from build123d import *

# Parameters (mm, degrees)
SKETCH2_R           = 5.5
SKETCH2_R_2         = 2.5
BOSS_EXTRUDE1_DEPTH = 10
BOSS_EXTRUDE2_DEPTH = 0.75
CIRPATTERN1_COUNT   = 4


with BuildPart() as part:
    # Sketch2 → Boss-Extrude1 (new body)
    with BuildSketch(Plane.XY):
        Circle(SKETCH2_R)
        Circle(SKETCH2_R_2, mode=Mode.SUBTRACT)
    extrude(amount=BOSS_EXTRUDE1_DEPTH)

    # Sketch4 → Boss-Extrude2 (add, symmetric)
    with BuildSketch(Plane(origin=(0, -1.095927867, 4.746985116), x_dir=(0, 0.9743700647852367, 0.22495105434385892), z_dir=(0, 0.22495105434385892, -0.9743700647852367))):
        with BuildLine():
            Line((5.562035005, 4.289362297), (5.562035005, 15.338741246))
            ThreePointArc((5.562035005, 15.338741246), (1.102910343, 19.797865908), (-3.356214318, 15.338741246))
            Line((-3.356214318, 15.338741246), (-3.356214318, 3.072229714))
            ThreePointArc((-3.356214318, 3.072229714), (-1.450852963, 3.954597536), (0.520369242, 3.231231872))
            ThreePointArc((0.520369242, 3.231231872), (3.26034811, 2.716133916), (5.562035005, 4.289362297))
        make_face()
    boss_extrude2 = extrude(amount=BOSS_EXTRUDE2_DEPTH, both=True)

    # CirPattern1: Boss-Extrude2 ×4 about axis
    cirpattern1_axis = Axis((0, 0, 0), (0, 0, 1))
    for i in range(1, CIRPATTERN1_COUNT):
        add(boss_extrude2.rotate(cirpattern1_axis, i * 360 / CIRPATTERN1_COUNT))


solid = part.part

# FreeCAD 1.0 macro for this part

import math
import FreeCAD as App
import Part
import Sketcher

V = App.Vector

doc = App.newDocument("Part")
body = doc.addObject("PartDesign::Body", "Body")

sketch1 = doc.addObject("Sketcher::SketchObject", "Sketch")
body.addObject(sketch1)
sketch1.AttachmentSupport = (doc.XY_Plane, [""])
sketch1.MapMode = "FlatFace"
sketch1.addGeometry([
    Part.Circle(V(0, 0, 0), V(0, 0, 1), 5.5),
    Part.Circle(V(0, 0, 0), V(0, 0, 1), 2.5),
], False)
sketch1.addConstraint([
    Sketcher.Constraint("Coincident", 0, 3, -1, 1),
    Sketcher.Constraint("Coincident", 1, 3, -1, 1),
    Sketcher.Constraint("Diameter", 0, 11.0),
    Sketcher.Constraint("Diameter", 1, 5.0),
])
pad1 = doc.addObject("PartDesign::Pad", "Pad")
body.addObject(pad1)
pad1.Profile = sketch1
pad1.Length = 10

sketch2 = doc.addObject("Sketcher::SketchObject", "Sketch001")
body.addObject(sketch2)
sketch2.Placement = App.Placement(V(0, -1.095928, 4.746985), App.Rotation(V(0, 0.974370065, 0.224951054), V(1, 0, 0), V(0, 0.224951054, -0.974370065), "ZXY"))
sketch2.addGeometry([
    Part.LineSegment(V(5.562035, 4.289362, 0), V(5.562035, 15.338741, 0)),
    Part.ArcOfCircle(Part.Circle(V(1.10291, 15.338741, 0), V(0, 0, 1), 4.459125), math.radians(0), math.radians(180)),
    Part.LineSegment(V(-3.356214, 15.338741, 0), V(-3.356214, 3.07223, 0)),
    Part.ArcOfCircle(Part.Circle(V(-1.338421, 1.213439, 0), V(0, 0, 1), 2.743463), math.radians(47.34873), math.radians(137.34873)),
    Part.ArcOfCircle(Part.Circle(V(2.512137, 6.28113, 0), V(0, 0, 1), 3.642666), math.radians(-123.146963), math.radians(-33.146963)),
], False)
sketch2.addConstraint([
    Sketcher.Constraint("Tangent", 0, 2, 1, 1),
    Sketcher.Constraint("Tangent", 1, 2, 2, 1),
    Sketcher.Constraint("Coincident", 2, 2, 3, 2),
    Sketcher.Constraint("Coincident", 3, 1, 4, 1),
    Sketcher.Constraint("Coincident", 4, 2, 0, 1),
    Sketcher.Constraint("Vertical", 0),
    Sketcher.Constraint("Vertical", 2),
    Sketcher.Constraint("Radius", 1, 4.459125),
    Sketcher.Constraint("Radius", 3, 2.743463),
    Sketcher.Constraint("Radius", 4, 3.642666),
    Sketcher.Constraint("DistanceY", 0, 1, 0, 2, 11.049379),
    Sketcher.Constraint("DistanceY", 2, 2, 2, 1, 12.266512),
    Sketcher.Constraint("DistanceX", 4, 3, 0, 2, 3.049898),
    Sketcher.Constraint("DistanceY", 3, 1, 4, 3, 3.049898),
    Sketcher.Constraint("DistanceX", -1, 1, 1, 3, 1.10291),
    Sketcher.Constraint("DistanceY", -1, 1, 1, 3, 15.338741),
])
pad2 = doc.addObject("PartDesign::Pad", "Pad001")
body.addObject(pad2)
pad2.Profile = sketch2
pad2.Length = 1.5
pad2.Midplane = True
doc.recompute()

polarpattern = doc.addObject("PartDesign::PolarPattern", "PolarPattern")
body.addObject(polarpattern)
polarpattern.Originals = [pad2]
polarpattern.Axis = (doc.Z_Axis, [""])
polarpattern.Angle = 360
polarpattern.Occurrences = 4
body.Tip = polarpattern

doc.recompute()
